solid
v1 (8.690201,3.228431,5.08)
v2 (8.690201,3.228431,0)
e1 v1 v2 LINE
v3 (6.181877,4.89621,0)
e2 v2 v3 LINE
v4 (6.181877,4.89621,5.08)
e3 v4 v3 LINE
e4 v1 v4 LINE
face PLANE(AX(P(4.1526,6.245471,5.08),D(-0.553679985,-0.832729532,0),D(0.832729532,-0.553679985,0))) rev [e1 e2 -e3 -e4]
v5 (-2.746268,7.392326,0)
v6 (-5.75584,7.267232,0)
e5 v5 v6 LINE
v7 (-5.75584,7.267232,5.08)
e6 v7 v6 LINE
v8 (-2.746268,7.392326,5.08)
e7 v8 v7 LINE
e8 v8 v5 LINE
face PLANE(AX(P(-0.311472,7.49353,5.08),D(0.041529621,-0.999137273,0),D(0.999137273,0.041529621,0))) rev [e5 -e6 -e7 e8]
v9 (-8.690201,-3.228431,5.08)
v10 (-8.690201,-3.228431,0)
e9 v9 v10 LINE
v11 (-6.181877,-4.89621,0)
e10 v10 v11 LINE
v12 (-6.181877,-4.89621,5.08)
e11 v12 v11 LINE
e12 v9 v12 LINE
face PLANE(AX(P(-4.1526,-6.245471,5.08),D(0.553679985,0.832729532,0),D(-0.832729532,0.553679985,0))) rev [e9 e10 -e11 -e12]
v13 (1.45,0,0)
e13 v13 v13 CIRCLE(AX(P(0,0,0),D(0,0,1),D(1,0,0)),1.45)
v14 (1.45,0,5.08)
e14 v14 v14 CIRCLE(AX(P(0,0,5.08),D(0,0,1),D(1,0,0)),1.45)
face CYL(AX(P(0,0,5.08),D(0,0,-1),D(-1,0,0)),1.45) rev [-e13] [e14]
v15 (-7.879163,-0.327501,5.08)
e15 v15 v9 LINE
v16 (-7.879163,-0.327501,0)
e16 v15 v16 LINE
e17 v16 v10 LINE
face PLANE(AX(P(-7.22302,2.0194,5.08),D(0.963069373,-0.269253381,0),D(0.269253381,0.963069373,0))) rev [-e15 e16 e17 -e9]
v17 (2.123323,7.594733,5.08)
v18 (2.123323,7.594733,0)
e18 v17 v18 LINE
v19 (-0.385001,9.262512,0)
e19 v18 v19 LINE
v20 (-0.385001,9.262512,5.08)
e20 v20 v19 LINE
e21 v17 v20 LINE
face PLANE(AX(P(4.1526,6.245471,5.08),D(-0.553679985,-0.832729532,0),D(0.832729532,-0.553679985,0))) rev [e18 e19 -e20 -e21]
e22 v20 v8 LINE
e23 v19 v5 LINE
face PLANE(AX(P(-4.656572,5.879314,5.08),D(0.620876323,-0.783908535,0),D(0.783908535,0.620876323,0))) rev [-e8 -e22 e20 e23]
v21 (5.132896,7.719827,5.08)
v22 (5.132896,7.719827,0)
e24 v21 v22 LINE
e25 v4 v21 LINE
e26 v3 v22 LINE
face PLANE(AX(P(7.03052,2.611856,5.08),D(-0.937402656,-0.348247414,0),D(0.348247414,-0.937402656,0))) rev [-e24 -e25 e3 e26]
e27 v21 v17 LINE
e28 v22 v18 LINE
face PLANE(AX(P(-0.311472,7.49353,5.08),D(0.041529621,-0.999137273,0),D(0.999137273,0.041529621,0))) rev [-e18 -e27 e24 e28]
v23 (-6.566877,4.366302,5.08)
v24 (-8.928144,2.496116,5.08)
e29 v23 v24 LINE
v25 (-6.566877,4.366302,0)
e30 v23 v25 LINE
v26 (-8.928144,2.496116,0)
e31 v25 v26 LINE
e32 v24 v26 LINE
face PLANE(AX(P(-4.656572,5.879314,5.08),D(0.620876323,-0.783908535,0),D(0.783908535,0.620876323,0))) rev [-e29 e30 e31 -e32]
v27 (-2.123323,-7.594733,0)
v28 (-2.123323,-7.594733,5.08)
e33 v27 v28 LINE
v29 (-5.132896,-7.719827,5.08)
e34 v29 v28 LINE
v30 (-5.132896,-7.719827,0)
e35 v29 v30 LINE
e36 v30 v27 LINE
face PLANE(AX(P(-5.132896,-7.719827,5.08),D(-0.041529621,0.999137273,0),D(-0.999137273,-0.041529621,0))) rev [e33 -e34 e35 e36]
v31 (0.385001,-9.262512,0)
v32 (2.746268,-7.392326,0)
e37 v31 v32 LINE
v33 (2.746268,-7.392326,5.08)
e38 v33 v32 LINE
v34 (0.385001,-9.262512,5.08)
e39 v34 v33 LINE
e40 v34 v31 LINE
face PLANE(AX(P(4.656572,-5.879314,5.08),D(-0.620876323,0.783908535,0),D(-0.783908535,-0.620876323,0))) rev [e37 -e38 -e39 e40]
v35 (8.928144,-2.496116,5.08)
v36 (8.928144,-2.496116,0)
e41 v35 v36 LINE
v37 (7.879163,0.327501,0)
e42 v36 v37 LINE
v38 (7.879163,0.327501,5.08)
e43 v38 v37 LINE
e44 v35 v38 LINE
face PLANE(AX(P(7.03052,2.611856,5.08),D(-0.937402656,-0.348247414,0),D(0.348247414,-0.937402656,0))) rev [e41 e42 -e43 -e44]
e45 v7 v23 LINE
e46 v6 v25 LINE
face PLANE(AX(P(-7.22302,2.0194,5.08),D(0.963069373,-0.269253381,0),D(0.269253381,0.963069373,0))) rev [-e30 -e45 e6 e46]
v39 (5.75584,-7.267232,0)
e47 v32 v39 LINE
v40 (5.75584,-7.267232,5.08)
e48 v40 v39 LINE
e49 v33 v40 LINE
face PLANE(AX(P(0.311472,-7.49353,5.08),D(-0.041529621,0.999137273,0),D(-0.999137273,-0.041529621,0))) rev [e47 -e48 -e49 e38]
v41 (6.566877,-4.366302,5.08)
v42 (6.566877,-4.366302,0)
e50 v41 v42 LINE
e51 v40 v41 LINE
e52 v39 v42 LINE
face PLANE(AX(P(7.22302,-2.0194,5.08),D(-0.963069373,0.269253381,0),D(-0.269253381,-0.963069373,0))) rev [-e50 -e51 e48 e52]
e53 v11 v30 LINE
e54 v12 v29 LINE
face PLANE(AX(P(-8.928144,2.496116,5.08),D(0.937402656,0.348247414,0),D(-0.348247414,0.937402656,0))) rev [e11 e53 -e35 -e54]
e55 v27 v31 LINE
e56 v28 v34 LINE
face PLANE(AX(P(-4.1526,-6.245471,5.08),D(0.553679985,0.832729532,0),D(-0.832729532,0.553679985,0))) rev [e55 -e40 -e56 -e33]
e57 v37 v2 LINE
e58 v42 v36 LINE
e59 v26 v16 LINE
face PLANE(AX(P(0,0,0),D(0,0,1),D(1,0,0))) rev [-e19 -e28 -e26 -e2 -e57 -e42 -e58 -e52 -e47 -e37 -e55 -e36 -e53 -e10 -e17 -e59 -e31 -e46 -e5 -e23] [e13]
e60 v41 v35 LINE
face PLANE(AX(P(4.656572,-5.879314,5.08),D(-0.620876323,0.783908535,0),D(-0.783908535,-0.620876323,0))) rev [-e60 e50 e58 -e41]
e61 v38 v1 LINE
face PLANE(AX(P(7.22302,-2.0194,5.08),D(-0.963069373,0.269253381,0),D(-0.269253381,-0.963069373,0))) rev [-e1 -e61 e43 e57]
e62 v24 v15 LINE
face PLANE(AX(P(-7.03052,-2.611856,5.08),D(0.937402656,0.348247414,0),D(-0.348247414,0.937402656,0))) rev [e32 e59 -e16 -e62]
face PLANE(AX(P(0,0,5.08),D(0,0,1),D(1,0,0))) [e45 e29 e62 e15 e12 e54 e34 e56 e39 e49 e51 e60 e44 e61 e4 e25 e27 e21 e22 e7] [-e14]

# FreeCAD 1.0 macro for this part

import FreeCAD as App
import Part
import Sketcher
from FreeCAD import Vector
Q = App.Units.Quantity


def add_polygon(sketch, points):
    """Adds a closed chain of lines whose ends are joined by coincident constraints."""
    first, n = sketch.GeometryCount, len(points)
    for a, b in zip(points, points[1:] + points[:1]):
        sketch.addGeometry(Part.LineSegment(App.Vector(*a, 0), App.Vector(*b, 0)), False)
    for i in range(n):
        sketch.addConstraint(Sketcher.Constraint("Coincident", first + i, 2, first + (i + 1) % n, 1))

doc = App.newDocument("Part")
body = doc.addObject("PartDesign::Body", "Body")

sketch1 = body.newObject("Sketcher::SketchObject", "Sketch")
sketch1.AttachmentSupport = (doc.getObject("XY_Plane"), [""])
sketch1.MapMode = "FlatFace"
add_polygon(sketch1, [(6.181877, 4.89621), (5.132896, 7.719827), (2.123323, 7.594733), (-0.385001, 9.262512), (-2.746268, 7.392326), (-5.75584, 7.267232), (-6.566877, 4.366302), (-8.928144, 2.496116), (-7.879163, -0.327501), (-8.690201, -3.228431), (-6.181877, -4.89621), (-5.132896, -7.719827), (-2.123323, -7.594733), (0.385001, -9.262512), (2.746268, -7.392326), (5.75584, -7.267232), (6.566877, -4.366302), (8.928144, -2.496116), (7.879163, 0.327501), (8.690201, 3.228431)])
sketch1.addConstraint(Sketcher.Constraint("Symmetric", 0, 2, 10, 2, -1, 1))
sketch1.addConstraint(Sketcher.Constraint("Symmetric", 1, 2, 11, 2, -1, 1))
sketch1.addConstraint(Sketcher.Constraint("Symmetric", 2, 2, 12, 2, -1, 1))
sketch1.addConstraint(Sketcher.Constraint("Symmetric", 3, 2, 13, 2, -1, 1))
sketch1.addConstraint(Sketcher.Constraint("Symmetric", 4, 2, 14, 2, -1, 1))
sketch1.addConstraint(Sketcher.Constraint("Symmetric", 5, 2, 15, 2, -1, 1))
sketch1.addConstraint(Sketcher.Constraint("Symmetric", 6, 2, 16, 2, -1, 1))
sketch1.addConstraint(Sketcher.Constraint("Symmetric", 7, 2, 17, 2, -1, 1))
sketch1.addConstraint(Sketcher.Constraint("Symmetric", 8, 2, 18, 2, -1, 1))
sketch1.addConstraint(Sketcher.Constraint("Symmetric", 9, 2, 19, 2, -1, 1))
sketch1.addConstraint(Sketcher.Constraint("Parallel", 1, 4))
sketch1.addConstraint(Sketcher.Constraint("Parallel", 3, 6))
sketch1.addConstraint(Sketcher.Constraint("Parallel", 0, 7))
sketch1.addConstraint(Sketcher.Constraint("Parallel", 5, 8))
sketch1.addConstraint(Sketcher.Constraint("Parallel", 2, 9))
sketch1.addConstraint(Sketcher.Constraint("Equal", 0, 1))
sketch1.addConstraint(Sketcher.Constraint("Equal", 1, 2))
sketch1.addConstraint(Sketcher.Constraint("Equal", 2, 3))
sketch1.addConstraint(Sketcher.Constraint("Equal", 3, 4))
sketch1.addConstraint(Sketcher.Constraint("Equal", 4, 5))
sketch1.addConstraint(Sketcher.Constraint("Equal", 5, 6))
sketch1.addConstraint(Sketcher.Constraint("Equal", 6, 7))
sketch1.addConstraint(Sketcher.Constraint("Equal", 7, 8))
sketch1.addConstraint(Sketcher.Constraint("Equal", 8, 9))
sketch1.addConstraint(Sketcher.Constraint("DistanceX", 2, 2, -1, 1, Q("0.385001 mm")))
sketch1.addConstraint(Sketcher.Constraint("DistanceY", -1, 1, 5, 2, Q("4.366302 mm")))
sketch1.addConstraint(Sketcher.Constraint("DistanceY", 7, 2, -1, 1, Q("0.327501 mm")))
sketch1.addConstraint(Sketcher.Constraint("DistanceX", 8, 2, -1, 1, Q("8.690201 mm")))
sketch1.addConstraint(Sketcher.Constraint("Distance", 0, Q("3.012171 mm")))
sketch1.addConstraint(Sketcher.Constraint("DistanceY", -1, 1, 2, 2, Q("9.262512 mm")))
pad1 = body.newObject("PartDesign::Pad", "Pad")
pad1.Profile = sketch1
pad1.Length = 5.08

sketch2 = body.newObject("Sketcher::SketchObject", "Sketch001")
sketch2.AttachmentSupport = (doc.getObject("XY_Plane"), [""])
sketch2.MapMode = "FlatFace"
sketch2.addGeometry(Part.Circle(Vector(0, 0, 0), Vector(0, 0, 1), 1.45), False)
sketch2.addConstraint(Sketcher.Constraint("Coincident", 0, 3, -1, 1))
sketch2.addConstraint(Sketcher.Constraint("Diameter", 0, Q("2.9 mm")))
pocket1 = body.newObject("PartDesign::Pocket", "Pocket")
pocket1.Profile = sketch2
pocket1.Type = "ThroughAll"
pocket1.Reversed = True

doc.recompute()
